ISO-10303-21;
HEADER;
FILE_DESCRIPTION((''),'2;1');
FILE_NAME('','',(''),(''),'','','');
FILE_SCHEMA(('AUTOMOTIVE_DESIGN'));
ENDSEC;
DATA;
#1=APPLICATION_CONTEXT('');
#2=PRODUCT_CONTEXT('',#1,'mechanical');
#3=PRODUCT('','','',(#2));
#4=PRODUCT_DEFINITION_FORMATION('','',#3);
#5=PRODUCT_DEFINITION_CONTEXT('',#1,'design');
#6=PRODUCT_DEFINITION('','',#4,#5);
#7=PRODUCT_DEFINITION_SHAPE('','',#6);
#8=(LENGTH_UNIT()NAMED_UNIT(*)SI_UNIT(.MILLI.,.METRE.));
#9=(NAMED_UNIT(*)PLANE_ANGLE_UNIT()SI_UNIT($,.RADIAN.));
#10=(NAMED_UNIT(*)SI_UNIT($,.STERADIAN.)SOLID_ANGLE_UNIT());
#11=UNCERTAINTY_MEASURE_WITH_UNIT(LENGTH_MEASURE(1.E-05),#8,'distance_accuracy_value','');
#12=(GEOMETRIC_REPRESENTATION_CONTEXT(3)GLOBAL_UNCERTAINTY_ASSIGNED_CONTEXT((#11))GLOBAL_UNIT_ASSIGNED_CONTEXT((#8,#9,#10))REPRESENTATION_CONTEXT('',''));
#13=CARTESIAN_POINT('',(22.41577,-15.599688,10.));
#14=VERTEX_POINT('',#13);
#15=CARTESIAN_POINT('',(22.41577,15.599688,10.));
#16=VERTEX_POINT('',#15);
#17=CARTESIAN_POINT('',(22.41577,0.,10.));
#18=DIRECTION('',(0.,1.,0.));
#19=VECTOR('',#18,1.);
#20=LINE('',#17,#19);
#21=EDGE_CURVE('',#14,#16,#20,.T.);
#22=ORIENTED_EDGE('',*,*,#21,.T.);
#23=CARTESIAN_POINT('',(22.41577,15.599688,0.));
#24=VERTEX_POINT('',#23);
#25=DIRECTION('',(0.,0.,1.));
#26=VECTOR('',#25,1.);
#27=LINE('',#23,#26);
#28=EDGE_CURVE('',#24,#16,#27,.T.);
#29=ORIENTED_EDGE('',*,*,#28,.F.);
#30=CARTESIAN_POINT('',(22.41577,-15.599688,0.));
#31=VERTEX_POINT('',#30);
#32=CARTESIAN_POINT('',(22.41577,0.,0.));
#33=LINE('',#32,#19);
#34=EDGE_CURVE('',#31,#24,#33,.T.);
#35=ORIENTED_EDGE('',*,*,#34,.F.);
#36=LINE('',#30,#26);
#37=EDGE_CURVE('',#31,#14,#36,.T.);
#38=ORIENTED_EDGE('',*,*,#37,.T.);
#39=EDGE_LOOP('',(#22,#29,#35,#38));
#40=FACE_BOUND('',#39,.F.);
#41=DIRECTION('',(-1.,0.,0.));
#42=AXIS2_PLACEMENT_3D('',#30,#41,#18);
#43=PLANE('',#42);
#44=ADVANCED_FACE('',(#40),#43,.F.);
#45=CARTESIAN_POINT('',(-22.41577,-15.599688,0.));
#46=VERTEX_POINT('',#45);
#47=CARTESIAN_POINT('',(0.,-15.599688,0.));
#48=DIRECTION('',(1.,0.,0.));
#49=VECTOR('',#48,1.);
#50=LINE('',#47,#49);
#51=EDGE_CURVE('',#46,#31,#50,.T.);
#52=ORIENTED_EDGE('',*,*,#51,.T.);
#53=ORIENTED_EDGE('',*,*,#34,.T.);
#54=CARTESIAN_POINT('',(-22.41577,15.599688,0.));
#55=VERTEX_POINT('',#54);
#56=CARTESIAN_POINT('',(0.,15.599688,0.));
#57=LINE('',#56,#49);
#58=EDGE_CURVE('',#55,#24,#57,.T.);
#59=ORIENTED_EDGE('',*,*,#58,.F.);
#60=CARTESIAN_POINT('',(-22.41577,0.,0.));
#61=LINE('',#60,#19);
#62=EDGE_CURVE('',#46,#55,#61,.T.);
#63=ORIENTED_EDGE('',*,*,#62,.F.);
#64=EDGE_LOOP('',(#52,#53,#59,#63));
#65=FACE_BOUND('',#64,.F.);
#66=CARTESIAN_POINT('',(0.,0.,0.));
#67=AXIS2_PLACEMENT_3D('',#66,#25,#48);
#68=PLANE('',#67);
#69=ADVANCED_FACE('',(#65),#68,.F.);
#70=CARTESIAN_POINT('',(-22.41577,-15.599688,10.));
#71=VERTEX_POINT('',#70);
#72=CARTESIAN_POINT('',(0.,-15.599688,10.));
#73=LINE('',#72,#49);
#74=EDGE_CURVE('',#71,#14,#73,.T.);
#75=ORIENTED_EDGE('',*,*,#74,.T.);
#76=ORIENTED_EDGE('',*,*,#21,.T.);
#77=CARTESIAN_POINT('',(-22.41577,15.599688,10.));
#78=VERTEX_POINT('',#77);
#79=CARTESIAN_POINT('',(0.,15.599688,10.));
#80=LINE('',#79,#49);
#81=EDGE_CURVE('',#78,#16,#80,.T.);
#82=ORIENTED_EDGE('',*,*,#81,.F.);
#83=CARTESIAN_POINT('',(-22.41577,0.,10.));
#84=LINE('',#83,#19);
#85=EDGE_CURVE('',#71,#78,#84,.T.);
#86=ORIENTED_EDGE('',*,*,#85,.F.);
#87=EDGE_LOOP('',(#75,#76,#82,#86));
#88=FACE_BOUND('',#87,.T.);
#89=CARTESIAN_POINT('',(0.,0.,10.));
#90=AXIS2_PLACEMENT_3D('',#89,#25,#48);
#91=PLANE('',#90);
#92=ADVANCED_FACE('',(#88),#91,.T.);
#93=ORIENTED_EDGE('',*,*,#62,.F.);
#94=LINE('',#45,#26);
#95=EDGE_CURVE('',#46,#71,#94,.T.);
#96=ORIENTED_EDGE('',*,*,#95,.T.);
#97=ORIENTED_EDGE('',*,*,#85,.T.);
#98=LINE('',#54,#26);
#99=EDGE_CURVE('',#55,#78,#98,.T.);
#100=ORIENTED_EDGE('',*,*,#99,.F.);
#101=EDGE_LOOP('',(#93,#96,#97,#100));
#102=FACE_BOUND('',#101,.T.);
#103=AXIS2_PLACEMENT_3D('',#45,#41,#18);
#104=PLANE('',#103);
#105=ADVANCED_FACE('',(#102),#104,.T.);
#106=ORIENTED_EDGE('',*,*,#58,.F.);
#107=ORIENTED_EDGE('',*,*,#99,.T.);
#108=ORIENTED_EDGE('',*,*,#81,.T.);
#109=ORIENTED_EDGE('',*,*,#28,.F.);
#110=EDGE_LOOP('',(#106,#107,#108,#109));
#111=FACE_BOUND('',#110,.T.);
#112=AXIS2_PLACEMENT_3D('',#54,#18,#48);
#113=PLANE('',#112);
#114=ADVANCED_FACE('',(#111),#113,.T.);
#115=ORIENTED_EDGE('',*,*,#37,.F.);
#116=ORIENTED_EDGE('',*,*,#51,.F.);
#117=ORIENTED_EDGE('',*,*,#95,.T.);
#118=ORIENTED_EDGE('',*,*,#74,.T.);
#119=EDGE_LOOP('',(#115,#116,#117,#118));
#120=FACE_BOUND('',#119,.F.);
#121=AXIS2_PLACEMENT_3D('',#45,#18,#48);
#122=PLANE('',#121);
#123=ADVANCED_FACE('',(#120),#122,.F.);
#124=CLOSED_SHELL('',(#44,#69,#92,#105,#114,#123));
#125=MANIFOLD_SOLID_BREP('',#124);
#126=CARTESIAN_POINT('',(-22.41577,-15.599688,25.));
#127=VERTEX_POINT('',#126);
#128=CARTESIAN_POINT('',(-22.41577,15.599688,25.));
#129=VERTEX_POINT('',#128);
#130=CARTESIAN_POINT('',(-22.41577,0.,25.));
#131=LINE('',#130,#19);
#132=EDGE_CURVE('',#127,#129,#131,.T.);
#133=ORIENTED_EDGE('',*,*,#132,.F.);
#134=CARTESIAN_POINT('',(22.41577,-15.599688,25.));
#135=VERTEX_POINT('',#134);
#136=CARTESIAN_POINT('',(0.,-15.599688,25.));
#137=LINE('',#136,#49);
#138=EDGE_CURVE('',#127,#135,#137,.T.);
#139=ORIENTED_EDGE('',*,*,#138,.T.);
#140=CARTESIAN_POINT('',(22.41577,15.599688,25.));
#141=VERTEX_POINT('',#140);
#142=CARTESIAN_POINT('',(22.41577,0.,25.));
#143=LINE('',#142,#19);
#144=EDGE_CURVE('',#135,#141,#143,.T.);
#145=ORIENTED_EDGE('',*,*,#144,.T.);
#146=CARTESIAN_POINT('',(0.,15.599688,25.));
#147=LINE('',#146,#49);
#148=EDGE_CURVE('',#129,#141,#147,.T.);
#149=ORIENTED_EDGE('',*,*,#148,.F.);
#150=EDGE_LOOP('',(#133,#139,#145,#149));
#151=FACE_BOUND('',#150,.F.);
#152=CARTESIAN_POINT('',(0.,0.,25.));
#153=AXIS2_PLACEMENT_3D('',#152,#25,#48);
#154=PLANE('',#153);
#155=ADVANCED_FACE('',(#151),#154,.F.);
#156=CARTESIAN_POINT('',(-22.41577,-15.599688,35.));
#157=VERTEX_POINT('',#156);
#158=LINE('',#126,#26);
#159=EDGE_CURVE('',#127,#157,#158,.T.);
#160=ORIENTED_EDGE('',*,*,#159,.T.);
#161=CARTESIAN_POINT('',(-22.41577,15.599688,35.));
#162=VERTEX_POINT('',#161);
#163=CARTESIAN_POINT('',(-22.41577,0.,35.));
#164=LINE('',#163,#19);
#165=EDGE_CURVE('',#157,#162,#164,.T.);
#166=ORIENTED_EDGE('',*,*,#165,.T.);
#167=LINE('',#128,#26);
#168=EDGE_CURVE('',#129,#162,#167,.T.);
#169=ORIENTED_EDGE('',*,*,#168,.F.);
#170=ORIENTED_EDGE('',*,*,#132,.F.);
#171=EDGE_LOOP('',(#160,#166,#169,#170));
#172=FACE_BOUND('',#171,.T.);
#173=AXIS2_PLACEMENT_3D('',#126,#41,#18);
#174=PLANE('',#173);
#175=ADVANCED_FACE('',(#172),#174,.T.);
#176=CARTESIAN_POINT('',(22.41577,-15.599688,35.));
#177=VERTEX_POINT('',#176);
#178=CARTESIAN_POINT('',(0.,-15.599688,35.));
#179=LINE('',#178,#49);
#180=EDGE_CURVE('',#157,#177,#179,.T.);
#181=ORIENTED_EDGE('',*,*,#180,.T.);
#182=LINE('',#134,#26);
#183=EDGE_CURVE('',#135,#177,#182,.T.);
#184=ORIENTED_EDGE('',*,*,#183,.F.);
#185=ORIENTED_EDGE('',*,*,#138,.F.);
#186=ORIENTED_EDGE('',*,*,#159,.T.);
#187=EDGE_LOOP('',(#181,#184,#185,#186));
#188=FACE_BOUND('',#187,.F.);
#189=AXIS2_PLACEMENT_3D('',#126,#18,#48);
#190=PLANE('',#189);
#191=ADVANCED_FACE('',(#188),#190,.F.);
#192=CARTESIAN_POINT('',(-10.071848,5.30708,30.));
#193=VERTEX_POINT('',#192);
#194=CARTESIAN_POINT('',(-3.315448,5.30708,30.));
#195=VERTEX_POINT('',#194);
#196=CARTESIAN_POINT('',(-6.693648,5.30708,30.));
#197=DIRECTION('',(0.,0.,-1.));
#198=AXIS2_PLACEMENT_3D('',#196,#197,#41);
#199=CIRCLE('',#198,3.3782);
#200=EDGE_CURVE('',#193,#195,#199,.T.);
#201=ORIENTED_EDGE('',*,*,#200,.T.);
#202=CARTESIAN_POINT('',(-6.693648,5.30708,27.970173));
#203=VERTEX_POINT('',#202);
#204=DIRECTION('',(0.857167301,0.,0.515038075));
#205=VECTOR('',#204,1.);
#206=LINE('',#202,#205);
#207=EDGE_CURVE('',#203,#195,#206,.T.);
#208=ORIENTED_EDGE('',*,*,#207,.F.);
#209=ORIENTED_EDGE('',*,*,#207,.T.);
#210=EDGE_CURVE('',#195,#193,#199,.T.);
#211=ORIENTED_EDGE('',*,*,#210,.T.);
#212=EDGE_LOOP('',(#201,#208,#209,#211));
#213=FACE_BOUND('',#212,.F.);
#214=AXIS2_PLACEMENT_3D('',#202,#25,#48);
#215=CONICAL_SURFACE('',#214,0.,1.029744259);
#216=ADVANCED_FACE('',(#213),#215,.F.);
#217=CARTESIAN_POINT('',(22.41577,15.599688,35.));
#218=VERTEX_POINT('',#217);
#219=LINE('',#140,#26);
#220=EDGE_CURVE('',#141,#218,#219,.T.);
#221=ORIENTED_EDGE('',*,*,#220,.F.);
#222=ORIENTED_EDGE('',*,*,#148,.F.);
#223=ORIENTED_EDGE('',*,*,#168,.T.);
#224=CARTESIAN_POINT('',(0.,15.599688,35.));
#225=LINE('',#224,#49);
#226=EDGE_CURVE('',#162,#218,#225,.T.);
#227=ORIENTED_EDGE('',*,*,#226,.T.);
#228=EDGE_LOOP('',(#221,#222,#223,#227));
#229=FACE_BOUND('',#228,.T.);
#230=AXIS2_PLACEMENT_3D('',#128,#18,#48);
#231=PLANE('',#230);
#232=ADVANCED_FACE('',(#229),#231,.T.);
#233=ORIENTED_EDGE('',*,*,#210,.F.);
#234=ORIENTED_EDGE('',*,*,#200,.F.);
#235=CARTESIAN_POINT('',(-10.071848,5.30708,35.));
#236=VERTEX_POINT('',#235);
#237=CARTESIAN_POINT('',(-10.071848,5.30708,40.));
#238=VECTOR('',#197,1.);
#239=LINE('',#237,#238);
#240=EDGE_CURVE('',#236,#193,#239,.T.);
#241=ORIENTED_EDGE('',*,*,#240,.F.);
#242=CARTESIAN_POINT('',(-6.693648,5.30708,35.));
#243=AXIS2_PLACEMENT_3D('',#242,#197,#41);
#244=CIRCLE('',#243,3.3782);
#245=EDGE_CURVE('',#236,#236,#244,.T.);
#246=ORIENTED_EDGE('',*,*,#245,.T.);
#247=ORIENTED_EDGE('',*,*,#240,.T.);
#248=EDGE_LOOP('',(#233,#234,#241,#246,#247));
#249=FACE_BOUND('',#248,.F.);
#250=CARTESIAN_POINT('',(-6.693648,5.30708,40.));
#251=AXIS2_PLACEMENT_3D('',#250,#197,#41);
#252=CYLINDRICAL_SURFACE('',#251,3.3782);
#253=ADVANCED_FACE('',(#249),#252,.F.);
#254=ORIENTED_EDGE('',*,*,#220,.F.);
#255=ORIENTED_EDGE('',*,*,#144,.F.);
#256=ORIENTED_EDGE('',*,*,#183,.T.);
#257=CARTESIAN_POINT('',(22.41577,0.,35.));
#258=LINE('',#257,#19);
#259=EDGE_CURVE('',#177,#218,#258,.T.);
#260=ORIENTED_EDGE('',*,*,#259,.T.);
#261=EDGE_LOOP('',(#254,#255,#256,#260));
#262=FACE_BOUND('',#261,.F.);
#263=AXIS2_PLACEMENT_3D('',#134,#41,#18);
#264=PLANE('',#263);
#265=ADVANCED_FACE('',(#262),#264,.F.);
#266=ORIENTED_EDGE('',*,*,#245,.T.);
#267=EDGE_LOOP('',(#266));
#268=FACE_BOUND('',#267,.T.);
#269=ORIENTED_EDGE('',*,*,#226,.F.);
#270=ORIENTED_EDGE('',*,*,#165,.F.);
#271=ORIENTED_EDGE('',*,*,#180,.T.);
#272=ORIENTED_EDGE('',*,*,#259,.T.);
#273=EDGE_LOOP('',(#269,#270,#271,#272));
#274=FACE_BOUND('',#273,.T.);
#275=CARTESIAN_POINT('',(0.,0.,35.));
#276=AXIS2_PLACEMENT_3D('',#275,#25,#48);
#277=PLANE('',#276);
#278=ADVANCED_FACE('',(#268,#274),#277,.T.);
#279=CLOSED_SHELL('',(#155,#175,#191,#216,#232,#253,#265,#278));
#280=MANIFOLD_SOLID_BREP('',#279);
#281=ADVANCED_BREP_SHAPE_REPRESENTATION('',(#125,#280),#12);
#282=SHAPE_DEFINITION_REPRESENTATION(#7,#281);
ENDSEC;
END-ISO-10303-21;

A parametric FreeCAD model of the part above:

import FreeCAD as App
import Part
import Sketcher
Q = App.Units.Quantity


def add_polygon(sketch, points):
    """Adds a closed chain of lines whose ends are joined by coincident constraints."""
    first, n = sketch.GeometryCount, len(points)
    for a, b in zip(points, points[1:] + points[:1]):
        sketch.addGeometry(Part.LineSegment(App.Vector(*a, 0), App.Vector(*b, 0)), False)
    for i in range(n):
        sketch.addConstraint(Sketcher.Constraint("Coincident", first + i, 2, first + (i + 1) % n, 1))

doc = App.newDocument("Part")
params = doc.addObject("Spreadsheet::Sheet", "Params")
for row, (alias, value) in enumerate([
    ("pad1_length", "10 mm"),
    ("pad2_length", "10 mm"),
    ("hole_diameter", "6.7564 mm"),
    ("hole_depth", "5 mm"),
], start=1):
    params.set(f"A{row}", alias)
    params.set(f"B{row}", "=" + value)
    params.setAlias(f"B{row}", alias)

body = doc.addObject("PartDesign::Body", "Body")

# Sketch on XY plane
sketch1 = doc.addObject("Sketcher::SketchObject", "Sketch")
body.addObject(sketch1)
sketch1.AttachmentSupport = (doc.XY_Plane, [""])
sketch1.MapMode = "FlatFace"
add_polygon(sketch1, [(-22.41577, 15.599688), (-22.41577, -15.599688), (22.41577, -15.599688), (22.41577, 15.599688)])  # lines 0-3
sketch1.addConstraint([
    Sketcher.Constraint("Vertical", 0),
    Sketcher.Constraint("Horizontal", 1),
    Sketcher.Constraint("Vertical", 2),
    Sketcher.Constraint("Horizontal", 3),
    Sketcher.Constraint("Symmetric", 0, 2, 2, 2, -1, 1),
    Sketcher.Constraint("DistanceX", 1, 1, 1, 2, Q("44.83154 mm")),
    Sketcher.Constraint("DistanceY", 0, 2, 0, 1, Q("31.199375 mm")),
])
pad1 = doc.addObject("PartDesign::Pad", "Pad")
body.addObject(pad1)
pad1.Profile = sketch1
pad1.setExpression("Length", "Params.pad1_length")
body2 = doc.addObject("PartDesign::Body", "Body001")

# Sketch on XY plane
sketch2 = doc.addObject("Sketcher::SketchObject", "Sketch001")
body2.addObject(sketch2)
sketch2.AttachmentSupport = (doc.getObject("XY_Plane001"), [""])
sketch2.MapMode = "FlatFace"
sketch2.AttachmentOffset = App.Placement(App.Vector(0, 0, 25), App.Rotation())
add_polygon(sketch2, [(-22.41577, 15.599688), (-22.41577, -15.599688), (22.41577, -15.599688), (22.41577, 15.599688)])  # lines 0-3
sketch2.addConstraint([
    Sketcher.Constraint("Vertical", 0),
    Sketcher.Constraint("Horizontal", 1),
    Sketcher.Constraint("Vertical", 2),
    Sketcher.Constraint("Horizontal", 3),
    Sketcher.Constraint("Symmetric", 0, 2, 2, 2, -1, 1),
    Sketcher.Constraint("DistanceX", 1, 1, 1, 2, Q("44.83154 mm")),
    Sketcher.Constraint("DistanceY", 0, 2, 0, 1, Q("31.199375 mm")),
])
pad2 = doc.addObject("PartDesign::Pad", "Pad001")
body2.addObject(pad2)
pad2.Profile = sketch2
pad2.setExpression("Length", "Params.pad2_length")

# Sketch on XY plane
sketch3 = doc.addObject("Sketcher::SketchObject", "Sketch002")
body2.addObject(sketch3)
sketch3.AttachmentSupport = (doc.getObject("XY_Plane001"), [""])
sketch3.MapMode = "FlatFace"
sketch3.AttachmentOffset = App.Placement(App.Vector(0, 0, 35), App.Rotation())
sketch3.addGeometry(Part.Circle(App.Vector(-6.693648, 5.30708, 0), App.Vector(0, 0, 1), 3.3782), False)
sketch3.addConstraint([
    Sketcher.Constraint("Diameter", 0, Q("6.7564 mm")),
    Sketcher.Constraint("DistanceY", -1, 1, 0, 3, Q("5.30708 mm")),
    Sketcher.Constraint("DistanceX", 0, 3, -1, 1, Q("6.693648 mm")),
])
doc.recompute()
hole = doc.addObject("PartDesign::Hole", "Hole")
body2.addObject(hole)
hole.Profile = sketch3
hole.ThreadType = "None"
hole.setExpression("Diameter", "Params.hole_diameter")
hole.DepthType = "Dimension"
hole.setExpression("Depth", "Params.hole_depth")
hole.DrillPoint = "Angled"
hole.DrillPointAngle = 118

doc.recompute()
